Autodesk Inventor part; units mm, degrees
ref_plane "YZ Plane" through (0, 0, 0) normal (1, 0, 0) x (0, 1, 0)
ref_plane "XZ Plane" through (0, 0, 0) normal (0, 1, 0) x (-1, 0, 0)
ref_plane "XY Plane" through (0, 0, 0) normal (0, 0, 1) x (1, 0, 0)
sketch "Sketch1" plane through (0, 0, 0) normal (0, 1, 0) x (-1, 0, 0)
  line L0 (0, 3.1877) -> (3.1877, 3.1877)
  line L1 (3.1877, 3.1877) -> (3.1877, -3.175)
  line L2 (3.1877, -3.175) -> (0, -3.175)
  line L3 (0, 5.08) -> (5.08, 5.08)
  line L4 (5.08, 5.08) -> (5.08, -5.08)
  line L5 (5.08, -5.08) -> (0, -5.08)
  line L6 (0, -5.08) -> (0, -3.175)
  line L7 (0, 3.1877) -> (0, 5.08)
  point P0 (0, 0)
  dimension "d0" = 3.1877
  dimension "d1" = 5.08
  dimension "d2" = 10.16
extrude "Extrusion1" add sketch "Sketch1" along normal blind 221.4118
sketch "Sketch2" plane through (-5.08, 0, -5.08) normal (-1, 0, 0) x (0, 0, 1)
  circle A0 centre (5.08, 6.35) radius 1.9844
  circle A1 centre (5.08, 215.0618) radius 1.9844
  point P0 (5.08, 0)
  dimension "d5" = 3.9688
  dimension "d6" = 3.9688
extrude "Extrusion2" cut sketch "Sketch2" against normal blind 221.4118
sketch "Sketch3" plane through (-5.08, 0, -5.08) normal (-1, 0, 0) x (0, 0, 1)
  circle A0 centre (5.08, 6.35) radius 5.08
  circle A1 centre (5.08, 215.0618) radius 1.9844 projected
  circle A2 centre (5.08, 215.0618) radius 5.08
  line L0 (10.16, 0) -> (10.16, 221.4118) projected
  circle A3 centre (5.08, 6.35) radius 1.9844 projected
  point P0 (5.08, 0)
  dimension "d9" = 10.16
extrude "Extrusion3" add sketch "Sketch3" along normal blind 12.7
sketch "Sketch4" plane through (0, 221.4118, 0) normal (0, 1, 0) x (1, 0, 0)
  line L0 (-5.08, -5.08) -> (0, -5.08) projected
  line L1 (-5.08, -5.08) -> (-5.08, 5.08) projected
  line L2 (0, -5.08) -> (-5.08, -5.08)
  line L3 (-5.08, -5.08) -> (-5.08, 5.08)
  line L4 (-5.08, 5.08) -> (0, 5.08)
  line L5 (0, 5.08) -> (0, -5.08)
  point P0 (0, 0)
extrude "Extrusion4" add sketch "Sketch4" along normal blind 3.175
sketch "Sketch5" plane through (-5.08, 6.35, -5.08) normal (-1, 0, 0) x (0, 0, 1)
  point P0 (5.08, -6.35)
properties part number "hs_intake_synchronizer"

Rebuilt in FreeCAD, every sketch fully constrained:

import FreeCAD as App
import Part
import Sketcher

V = App.Vector
Q = App.Units.Quantity


def add_polygon(sketch, points):
    """Adds a closed chain of lines whose ends are joined by coincident constraints."""
    first, n = sketch.GeometryCount, len(points)
    for a, b in zip(points, points[1:] + points[:1]):
        sketch.addGeometry(Part.LineSegment(App.Vector(*a, 0), App.Vector(*b, 0)), False)
    for i in range(n):
        sketch.addConstraint(Sketcher.Constraint("Coincident", first + i, 2, first + (i + 1) % n, 1))

doc = App.newDocument("Part")
body = doc.addObject("PartDesign::Body", "Body")

# Sketch on XZ plane
sketch1 = doc.addObject("Sketcher::SketchObject", "Sketch")
body.addObject(sketch1)
sketch1.AttachmentSupport = (doc.XZ_Plane, [""])
sketch1.MapMode = "FlatFace"
add_polygon(sketch1, [(0, 5.1), (0, 3.2), (-3.2, 3.2), (-3.2, -3.2), (0, -3.2), (0, -5.1), (-5.1, -5.1), (-5.1, 5.1)])  # lines 0-7
sketch1.addConstraint([
    Sketcher.Constraint("Vertical", 0),
    Sketcher.Constraint("Horizontal", 1),
    Sketcher.Constraint("Vertical", 2),
    Sketcher.Constraint("Horizontal", 3),
    Sketcher.Constraint("Vertical", 4),
    Sketcher.Constraint("Horizontal", 5),
    Sketcher.Constraint("Vertical", 6),
    Sketcher.Constraint("Horizontal", 7),
    Sketcher.Constraint("Symmetric", 4, 2, 7, 2, -1, 1),
    Sketcher.Constraint("PointOnObject", 0, 2, -2),
    Sketcher.Constraint("DistanceX", 5, 2, 5, 1, Q("0.2 in")),
    Sketcher.Constraint("DistanceY", 6, 1, 6, 2, Q("0.4 in")),
    Sketcher.Constraint("DistanceX", 1, 2, 1, 1, Q("0.1255 in")),
    Sketcher.Constraint("DistanceY", -1, 1, 0, 2, Q("0.1255 in")),
    Sketcher.Constraint("DistanceY", 4, 2, 4, 1, Q("0.075 in")),
])
pad1 = doc.addObject("PartDesign::Pad", "Pad")
body.addObject(pad1)
pad1.Profile = sketch1
pad1.Length = Q("8.717 in")
pad1.Reversed = True

# Sketch on YZ plane
sketch2 = doc.addObject("Sketcher::SketchObject", "Sketch001")
body.addObject(sketch2)
sketch2.AttachmentSupport = (doc.YZ_Plane, [""])
sketch2.MapMode = "FlatFace"
sketch2.AttachmentOffset = App.Placement(V(0, 0, -0.2 * 25.4), App.Rotation())
sketch2.addGeometry([
    Part.Circle(V(6.3, 0, 0), V(0, 0, 1), 2),
    Part.Circle(V(215.1, 0, 0), V(0, 0, 1), 2),
], False)
sketch2.addConstraint([
    Sketcher.Constraint("Equal", 0, 1),
    Sketcher.Constraint("PointOnObject", 0, 3, -1),
    Sketcher.Constraint("PointOnObject", 1, 3, -1),
    Sketcher.Constraint("Diameter", 0, Q("0.156252 in")),
    Sketcher.Constraint("DistanceX", -1, 1, 0, 3, Q("0.25 in")),
    Sketcher.Constraint("DistanceX", -1, 1, 1, 3, Q("8.467 in")),
])
pocket1 = doc.addObject("PartDesign::Pocket", "Pocket")
body.addObject(pocket1)
pocket1.Profile = sketch2
pocket1.Length = Q("8.717 in")
pocket1.Reversed = True

# Sketch on YZ plane
sketch3 = doc.addObject("Sketcher::SketchObject", "Sketch002")
body.addObject(sketch3)
sketch3.AttachmentSupport = (doc.YZ_Plane, [""])
sketch3.MapMode = "FlatFace"
sketch3.AttachmentOffset = App.Placement(V(0, 0, -0.2 * 25.4), App.Rotation())
sketch3.addGeometry([
    Part.Circle(V(6.3, 0, 0), V(0, 0, 1), 5.1),
    Part.Circle(V(6.3, 0, 0), V(0, 0, 1), 2),
    Part.Circle(V(215.1, 0, 0), V(0, 0, 1), 5.1),
    Part.Circle(V(215.1, 0, 0), V(0, 0, 1), 2),
], False)
sketch3.addConstraint([
    Sketcher.Constraint("Coincident", 1, 3, 0, 3),
    Sketcher.Constraint("Coincident", 3, 3, 2, 3),
    Sketcher.Constraint("Equal", 0, 2),
    Sketcher.Constraint("Equal", 1, 3),
    Sketcher.Constraint("PointOnObject", 0, 3, -1),
    Sketcher.Constraint("PointOnObject", 2, 3, -1),
    Sketcher.Constraint("Diameter", 0, Q("0.4 in")),
    Sketcher.Constraint("Diameter", 1, Q("0.156252 in")),
    Sketcher.Constraint("DistanceX", -1, 1, 0, 3, Q("0.25 in")),
    Sketcher.Constraint("DistanceX", -1, 1, 2, 3, Q("8.467 in")),
])
pad2 = doc.addObject("PartDesign::Pad", "Pad001")
body.addObject(pad2)
pad2.Profile = sketch3
pad2.Length = Q("0.5 in")
pad2.Reversed = True

# Sketch on XZ plane
sketch4 = doc.addObject("Sketcher::SketchObject", "Sketch003")
body.addObject(sketch4)
sketch4.AttachmentSupport = (doc.XZ_Plane, [""])
sketch4.MapMode = "FlatFace"
sketch4.AttachmentOffset = App.Placement(V(0, 0, -8.717 * 25.4), App.Rotation())
add_polygon(sketch4, [(-5, -5), (-5, 5), (0, 5), (0, -5)])  # lines 0-3
sketch4.addConstraint([
    Sketcher.Constraint("Vertical", 0),
    Sketcher.Constraint("Horizontal", 1),
    Sketcher.Constraint("Vertical", 2),
    Sketcher.Constraint("Horizontal", 3),
    Sketcher.Constraint("Symmetric", 1, 2, 2, 2, -1, 1),
    Sketcher.Constraint("DistanceX", 1, 1, 1, 2, Q("0.2 in")),
    Sketcher.Constraint("DistanceY", 0, 1, 0, 2, Q("0.4 in")),
])
pad3 = doc.addObject("PartDesign::Pad", "Pad002")
body.addObject(pad3)
pad3.Profile = sketch4
pad3.Length = Q("0.125 in")
pad3.Reversed = True

doc.recompute()
